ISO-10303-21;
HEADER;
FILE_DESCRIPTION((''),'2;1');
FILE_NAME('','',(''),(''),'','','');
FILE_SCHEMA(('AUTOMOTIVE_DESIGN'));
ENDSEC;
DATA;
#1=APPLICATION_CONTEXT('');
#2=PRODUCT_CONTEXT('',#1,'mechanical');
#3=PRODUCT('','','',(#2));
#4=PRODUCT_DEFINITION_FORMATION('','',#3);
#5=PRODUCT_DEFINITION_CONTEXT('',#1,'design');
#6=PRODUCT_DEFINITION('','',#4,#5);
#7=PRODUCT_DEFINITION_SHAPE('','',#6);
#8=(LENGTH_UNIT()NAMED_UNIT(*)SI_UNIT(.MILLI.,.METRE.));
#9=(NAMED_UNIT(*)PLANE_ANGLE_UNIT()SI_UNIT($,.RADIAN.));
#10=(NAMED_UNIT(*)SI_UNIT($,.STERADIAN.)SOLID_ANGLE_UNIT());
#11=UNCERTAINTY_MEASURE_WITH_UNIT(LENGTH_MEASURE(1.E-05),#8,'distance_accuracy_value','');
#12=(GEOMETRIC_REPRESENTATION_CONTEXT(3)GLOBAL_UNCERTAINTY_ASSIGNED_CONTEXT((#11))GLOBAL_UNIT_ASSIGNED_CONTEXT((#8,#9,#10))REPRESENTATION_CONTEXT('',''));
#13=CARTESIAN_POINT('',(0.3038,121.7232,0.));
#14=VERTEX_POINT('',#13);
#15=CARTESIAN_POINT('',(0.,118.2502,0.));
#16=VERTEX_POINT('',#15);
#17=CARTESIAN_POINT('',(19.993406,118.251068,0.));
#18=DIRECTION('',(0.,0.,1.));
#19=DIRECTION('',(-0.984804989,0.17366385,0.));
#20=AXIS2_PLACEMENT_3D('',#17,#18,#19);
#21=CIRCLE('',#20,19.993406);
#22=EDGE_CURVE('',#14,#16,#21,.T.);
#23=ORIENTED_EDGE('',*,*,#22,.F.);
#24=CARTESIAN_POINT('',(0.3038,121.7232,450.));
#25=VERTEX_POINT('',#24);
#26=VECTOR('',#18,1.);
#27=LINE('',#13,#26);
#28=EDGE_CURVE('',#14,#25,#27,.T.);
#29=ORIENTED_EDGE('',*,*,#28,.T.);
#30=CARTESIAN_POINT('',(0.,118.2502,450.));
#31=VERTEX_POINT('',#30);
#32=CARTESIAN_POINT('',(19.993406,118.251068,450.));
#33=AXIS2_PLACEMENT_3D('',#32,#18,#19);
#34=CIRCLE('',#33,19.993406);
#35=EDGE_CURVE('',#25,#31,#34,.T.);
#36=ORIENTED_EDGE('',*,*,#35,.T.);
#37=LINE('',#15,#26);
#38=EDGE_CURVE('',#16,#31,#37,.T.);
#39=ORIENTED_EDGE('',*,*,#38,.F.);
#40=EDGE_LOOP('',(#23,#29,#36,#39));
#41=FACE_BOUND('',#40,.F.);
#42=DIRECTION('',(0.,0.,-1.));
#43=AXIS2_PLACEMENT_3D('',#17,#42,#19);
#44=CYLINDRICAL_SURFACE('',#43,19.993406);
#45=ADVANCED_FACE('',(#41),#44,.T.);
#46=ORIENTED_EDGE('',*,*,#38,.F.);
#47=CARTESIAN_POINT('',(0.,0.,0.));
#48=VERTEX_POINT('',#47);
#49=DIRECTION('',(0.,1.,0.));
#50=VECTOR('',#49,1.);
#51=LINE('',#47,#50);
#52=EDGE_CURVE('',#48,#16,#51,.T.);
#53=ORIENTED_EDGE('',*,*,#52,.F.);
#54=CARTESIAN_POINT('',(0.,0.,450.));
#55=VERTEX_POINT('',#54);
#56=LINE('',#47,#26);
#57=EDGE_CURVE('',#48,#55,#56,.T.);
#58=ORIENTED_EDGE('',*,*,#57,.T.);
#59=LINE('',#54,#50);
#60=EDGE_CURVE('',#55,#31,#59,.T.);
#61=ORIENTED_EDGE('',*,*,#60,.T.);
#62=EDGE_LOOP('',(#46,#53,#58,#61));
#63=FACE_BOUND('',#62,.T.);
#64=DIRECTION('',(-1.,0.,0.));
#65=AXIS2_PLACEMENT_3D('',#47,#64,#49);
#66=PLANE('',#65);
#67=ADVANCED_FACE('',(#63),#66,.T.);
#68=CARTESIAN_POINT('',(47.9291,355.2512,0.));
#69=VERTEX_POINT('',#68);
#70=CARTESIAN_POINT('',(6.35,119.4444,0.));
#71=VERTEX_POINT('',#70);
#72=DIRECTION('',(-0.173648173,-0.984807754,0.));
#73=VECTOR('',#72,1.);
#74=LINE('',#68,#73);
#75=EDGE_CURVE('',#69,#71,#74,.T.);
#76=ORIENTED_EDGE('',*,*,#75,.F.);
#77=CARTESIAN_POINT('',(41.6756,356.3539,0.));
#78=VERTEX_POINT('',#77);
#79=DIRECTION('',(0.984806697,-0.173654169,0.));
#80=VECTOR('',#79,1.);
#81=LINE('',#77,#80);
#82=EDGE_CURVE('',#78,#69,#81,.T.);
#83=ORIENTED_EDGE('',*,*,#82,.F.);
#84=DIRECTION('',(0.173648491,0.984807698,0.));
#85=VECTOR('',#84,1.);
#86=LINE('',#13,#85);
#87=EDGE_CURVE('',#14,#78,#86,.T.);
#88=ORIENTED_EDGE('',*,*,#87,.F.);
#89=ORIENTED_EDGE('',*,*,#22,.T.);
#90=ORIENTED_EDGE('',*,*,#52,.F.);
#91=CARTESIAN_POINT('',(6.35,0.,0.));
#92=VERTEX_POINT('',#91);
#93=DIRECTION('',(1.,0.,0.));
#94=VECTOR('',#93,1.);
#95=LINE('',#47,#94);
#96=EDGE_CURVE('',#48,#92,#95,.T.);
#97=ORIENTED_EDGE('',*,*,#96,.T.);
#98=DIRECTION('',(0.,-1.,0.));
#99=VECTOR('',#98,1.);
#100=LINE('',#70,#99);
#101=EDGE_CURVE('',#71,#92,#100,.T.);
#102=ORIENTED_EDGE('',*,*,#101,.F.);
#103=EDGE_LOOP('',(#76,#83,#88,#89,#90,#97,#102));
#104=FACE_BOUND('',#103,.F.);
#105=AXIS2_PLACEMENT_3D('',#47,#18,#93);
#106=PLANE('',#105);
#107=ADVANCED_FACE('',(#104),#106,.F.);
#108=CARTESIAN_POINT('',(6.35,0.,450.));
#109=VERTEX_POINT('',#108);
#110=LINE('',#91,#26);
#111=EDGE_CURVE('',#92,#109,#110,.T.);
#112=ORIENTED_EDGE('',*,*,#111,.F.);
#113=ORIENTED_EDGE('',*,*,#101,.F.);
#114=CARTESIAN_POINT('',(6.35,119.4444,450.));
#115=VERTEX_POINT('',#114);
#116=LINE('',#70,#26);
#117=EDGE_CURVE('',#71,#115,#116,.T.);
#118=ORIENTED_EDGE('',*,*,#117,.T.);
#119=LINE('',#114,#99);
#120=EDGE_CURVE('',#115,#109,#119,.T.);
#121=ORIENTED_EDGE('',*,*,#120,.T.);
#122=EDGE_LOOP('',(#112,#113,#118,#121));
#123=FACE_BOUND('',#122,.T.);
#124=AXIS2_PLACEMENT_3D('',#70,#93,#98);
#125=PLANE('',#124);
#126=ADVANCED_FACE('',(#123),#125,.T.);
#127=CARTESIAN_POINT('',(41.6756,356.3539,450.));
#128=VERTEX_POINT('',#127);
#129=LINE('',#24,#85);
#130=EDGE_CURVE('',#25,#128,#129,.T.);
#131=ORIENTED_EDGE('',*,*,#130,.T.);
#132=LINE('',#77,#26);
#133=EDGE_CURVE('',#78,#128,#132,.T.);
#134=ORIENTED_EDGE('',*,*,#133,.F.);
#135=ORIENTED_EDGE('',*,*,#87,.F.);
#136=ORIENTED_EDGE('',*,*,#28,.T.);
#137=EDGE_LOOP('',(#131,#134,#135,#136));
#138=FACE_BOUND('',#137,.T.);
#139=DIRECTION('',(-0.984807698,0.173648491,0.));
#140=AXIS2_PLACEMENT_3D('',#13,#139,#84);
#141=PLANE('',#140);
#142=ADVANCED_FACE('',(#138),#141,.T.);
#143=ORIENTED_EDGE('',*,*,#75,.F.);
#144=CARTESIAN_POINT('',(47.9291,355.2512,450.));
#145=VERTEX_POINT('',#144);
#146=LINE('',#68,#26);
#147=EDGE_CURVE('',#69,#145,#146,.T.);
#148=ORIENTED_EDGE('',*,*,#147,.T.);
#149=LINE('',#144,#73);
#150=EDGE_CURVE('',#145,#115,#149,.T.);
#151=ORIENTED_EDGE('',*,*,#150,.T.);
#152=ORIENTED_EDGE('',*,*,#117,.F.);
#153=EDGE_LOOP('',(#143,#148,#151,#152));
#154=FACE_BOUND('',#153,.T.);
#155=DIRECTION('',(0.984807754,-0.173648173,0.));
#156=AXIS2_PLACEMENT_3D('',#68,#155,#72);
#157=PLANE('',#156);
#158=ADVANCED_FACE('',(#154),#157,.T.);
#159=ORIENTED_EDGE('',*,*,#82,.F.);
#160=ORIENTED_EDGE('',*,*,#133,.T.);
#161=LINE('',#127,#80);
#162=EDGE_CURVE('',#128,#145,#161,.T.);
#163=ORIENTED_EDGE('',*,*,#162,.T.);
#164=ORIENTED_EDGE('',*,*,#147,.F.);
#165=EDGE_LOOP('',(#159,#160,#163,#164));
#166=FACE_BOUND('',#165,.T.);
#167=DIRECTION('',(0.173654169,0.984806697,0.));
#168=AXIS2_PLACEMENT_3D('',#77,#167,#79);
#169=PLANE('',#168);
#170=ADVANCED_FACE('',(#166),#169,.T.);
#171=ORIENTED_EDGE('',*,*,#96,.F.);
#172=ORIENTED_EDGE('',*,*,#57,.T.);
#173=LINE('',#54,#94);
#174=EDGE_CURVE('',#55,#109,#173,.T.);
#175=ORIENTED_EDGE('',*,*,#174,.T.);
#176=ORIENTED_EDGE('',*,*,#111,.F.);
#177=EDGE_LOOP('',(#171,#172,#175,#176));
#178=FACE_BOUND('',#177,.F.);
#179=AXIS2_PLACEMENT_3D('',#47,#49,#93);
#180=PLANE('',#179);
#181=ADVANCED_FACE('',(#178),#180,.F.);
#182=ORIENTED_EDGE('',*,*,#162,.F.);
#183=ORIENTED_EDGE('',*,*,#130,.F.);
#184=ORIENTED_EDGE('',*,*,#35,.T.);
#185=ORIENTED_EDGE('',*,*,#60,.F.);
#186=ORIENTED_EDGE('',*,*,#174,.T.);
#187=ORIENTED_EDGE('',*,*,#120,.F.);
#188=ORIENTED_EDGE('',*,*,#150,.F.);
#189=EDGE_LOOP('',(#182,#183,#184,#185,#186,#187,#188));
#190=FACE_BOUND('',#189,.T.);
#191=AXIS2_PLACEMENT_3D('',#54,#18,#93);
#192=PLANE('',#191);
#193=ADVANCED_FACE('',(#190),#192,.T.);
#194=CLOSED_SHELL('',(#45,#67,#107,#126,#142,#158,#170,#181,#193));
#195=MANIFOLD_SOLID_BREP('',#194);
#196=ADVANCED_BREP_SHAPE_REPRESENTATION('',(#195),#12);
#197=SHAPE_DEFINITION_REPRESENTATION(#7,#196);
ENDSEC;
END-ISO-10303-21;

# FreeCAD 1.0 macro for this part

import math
import FreeCAD as App
import Part
import Sketcher
from FreeCAD import Vector
Q = App.Units.Quantity

doc = App.newDocument("Part")
body = doc.addObject("PartDesign::Body", "Body")

# Sketch on XY plane
sketch1 = body.newObject("Sketcher::SketchObject", "Sketch")
sketch1.AttachmentSupport = (doc.getObject("XY_Plane"), [""])
sketch1.MapMode = "FlatFace"
sketch1.addGeometry([
    Part.LineSegment(Vector(0, 118.2502, 0), Vector(0, 0, 0)),  # 0
    Part.LineSegment(Vector(0, 0, 0), Vector(6.35, 0, 0)),  # 1
    Part.LineSegment(Vector(6.35, 0, 0), Vector(6.35, 119.4444, 0)),  # 2
    Part.LineSegment(Vector(6.35, 119.4444, 0), Vector(47.9291, 355.2512, 0)),  # 3
    Part.LineSegment(Vector(47.9291, 355.2512, 0), Vector(41.6756, 356.3539, 0)),  # 4
    Part.LineSegment(Vector(41.6756, 356.3539, 0), Vector(0.3038, 121.7232, 0)),  # 5
    Part.ArcOfCircle(Part.Circle(Vector(19.993406, 118.251068, 0), Vector(0, 0, 1), 19.993406), math.radians(169.999088), math.radians(180.002488)),  # 6
], False)
sketch1.addConstraint([
    Sketcher.Constraint("Coincident", 0, 2, 1, 1),
    Sketcher.Constraint("Coincident", 1, 2, 2, 1),
    Sketcher.Constraint("Coincident", 2, 2, 3, 1),
    Sketcher.Constraint("Coincident", 3, 2, 4, 1),
    Sketcher.Constraint("Coincident", 4, 2, 5, 1),
    Sketcher.Constraint("Coincident", 5, 2, 6, 1),
    Sketcher.Constraint("Coincident", 6, 2, 0, 1),
    Sketcher.Constraint("Vertical", 0),
    Sketcher.Constraint("Horizontal", 1),
    Sketcher.Constraint("Vertical", 2),
    Sketcher.Constraint("Coincident", 0, 2, -1, 1),
    Sketcher.Constraint("DistanceX", 1, 1, 1, 2, Q("0.25 in")),
    Sketcher.Constraint("Distance", 4, Q("0.25 in")),
    Sketcher.Constraint("Radius", 6, 19.9934),
    Sketcher.Constraint("DistanceY", 0, 2, 0, 1, 118.2502),
    Sketcher.Constraint("DistanceY", 2, 1, 2, 2, 119.4444),
    Sketcher.Constraint("DistanceX", 4, 2, 3, 2, Q("0.2462 in")),
    Sketcher.Constraint("DistanceY", 6, 3, 5, 2, Q("0.1367 in")),
    Sketcher.Constraint("DistanceX", 5, 2, 4, 2, Q("1.6288 in")),
    Sketcher.Constraint("Distance", 3, 239.4445),
    Sketcher.Constraint("Distance", 5, 238.2503),
])
pad1 = body.newObject("PartDesign::Pad", "Pad")
pad1.Profile = sketch1
pad1.Length = 450

doc.recompute()
